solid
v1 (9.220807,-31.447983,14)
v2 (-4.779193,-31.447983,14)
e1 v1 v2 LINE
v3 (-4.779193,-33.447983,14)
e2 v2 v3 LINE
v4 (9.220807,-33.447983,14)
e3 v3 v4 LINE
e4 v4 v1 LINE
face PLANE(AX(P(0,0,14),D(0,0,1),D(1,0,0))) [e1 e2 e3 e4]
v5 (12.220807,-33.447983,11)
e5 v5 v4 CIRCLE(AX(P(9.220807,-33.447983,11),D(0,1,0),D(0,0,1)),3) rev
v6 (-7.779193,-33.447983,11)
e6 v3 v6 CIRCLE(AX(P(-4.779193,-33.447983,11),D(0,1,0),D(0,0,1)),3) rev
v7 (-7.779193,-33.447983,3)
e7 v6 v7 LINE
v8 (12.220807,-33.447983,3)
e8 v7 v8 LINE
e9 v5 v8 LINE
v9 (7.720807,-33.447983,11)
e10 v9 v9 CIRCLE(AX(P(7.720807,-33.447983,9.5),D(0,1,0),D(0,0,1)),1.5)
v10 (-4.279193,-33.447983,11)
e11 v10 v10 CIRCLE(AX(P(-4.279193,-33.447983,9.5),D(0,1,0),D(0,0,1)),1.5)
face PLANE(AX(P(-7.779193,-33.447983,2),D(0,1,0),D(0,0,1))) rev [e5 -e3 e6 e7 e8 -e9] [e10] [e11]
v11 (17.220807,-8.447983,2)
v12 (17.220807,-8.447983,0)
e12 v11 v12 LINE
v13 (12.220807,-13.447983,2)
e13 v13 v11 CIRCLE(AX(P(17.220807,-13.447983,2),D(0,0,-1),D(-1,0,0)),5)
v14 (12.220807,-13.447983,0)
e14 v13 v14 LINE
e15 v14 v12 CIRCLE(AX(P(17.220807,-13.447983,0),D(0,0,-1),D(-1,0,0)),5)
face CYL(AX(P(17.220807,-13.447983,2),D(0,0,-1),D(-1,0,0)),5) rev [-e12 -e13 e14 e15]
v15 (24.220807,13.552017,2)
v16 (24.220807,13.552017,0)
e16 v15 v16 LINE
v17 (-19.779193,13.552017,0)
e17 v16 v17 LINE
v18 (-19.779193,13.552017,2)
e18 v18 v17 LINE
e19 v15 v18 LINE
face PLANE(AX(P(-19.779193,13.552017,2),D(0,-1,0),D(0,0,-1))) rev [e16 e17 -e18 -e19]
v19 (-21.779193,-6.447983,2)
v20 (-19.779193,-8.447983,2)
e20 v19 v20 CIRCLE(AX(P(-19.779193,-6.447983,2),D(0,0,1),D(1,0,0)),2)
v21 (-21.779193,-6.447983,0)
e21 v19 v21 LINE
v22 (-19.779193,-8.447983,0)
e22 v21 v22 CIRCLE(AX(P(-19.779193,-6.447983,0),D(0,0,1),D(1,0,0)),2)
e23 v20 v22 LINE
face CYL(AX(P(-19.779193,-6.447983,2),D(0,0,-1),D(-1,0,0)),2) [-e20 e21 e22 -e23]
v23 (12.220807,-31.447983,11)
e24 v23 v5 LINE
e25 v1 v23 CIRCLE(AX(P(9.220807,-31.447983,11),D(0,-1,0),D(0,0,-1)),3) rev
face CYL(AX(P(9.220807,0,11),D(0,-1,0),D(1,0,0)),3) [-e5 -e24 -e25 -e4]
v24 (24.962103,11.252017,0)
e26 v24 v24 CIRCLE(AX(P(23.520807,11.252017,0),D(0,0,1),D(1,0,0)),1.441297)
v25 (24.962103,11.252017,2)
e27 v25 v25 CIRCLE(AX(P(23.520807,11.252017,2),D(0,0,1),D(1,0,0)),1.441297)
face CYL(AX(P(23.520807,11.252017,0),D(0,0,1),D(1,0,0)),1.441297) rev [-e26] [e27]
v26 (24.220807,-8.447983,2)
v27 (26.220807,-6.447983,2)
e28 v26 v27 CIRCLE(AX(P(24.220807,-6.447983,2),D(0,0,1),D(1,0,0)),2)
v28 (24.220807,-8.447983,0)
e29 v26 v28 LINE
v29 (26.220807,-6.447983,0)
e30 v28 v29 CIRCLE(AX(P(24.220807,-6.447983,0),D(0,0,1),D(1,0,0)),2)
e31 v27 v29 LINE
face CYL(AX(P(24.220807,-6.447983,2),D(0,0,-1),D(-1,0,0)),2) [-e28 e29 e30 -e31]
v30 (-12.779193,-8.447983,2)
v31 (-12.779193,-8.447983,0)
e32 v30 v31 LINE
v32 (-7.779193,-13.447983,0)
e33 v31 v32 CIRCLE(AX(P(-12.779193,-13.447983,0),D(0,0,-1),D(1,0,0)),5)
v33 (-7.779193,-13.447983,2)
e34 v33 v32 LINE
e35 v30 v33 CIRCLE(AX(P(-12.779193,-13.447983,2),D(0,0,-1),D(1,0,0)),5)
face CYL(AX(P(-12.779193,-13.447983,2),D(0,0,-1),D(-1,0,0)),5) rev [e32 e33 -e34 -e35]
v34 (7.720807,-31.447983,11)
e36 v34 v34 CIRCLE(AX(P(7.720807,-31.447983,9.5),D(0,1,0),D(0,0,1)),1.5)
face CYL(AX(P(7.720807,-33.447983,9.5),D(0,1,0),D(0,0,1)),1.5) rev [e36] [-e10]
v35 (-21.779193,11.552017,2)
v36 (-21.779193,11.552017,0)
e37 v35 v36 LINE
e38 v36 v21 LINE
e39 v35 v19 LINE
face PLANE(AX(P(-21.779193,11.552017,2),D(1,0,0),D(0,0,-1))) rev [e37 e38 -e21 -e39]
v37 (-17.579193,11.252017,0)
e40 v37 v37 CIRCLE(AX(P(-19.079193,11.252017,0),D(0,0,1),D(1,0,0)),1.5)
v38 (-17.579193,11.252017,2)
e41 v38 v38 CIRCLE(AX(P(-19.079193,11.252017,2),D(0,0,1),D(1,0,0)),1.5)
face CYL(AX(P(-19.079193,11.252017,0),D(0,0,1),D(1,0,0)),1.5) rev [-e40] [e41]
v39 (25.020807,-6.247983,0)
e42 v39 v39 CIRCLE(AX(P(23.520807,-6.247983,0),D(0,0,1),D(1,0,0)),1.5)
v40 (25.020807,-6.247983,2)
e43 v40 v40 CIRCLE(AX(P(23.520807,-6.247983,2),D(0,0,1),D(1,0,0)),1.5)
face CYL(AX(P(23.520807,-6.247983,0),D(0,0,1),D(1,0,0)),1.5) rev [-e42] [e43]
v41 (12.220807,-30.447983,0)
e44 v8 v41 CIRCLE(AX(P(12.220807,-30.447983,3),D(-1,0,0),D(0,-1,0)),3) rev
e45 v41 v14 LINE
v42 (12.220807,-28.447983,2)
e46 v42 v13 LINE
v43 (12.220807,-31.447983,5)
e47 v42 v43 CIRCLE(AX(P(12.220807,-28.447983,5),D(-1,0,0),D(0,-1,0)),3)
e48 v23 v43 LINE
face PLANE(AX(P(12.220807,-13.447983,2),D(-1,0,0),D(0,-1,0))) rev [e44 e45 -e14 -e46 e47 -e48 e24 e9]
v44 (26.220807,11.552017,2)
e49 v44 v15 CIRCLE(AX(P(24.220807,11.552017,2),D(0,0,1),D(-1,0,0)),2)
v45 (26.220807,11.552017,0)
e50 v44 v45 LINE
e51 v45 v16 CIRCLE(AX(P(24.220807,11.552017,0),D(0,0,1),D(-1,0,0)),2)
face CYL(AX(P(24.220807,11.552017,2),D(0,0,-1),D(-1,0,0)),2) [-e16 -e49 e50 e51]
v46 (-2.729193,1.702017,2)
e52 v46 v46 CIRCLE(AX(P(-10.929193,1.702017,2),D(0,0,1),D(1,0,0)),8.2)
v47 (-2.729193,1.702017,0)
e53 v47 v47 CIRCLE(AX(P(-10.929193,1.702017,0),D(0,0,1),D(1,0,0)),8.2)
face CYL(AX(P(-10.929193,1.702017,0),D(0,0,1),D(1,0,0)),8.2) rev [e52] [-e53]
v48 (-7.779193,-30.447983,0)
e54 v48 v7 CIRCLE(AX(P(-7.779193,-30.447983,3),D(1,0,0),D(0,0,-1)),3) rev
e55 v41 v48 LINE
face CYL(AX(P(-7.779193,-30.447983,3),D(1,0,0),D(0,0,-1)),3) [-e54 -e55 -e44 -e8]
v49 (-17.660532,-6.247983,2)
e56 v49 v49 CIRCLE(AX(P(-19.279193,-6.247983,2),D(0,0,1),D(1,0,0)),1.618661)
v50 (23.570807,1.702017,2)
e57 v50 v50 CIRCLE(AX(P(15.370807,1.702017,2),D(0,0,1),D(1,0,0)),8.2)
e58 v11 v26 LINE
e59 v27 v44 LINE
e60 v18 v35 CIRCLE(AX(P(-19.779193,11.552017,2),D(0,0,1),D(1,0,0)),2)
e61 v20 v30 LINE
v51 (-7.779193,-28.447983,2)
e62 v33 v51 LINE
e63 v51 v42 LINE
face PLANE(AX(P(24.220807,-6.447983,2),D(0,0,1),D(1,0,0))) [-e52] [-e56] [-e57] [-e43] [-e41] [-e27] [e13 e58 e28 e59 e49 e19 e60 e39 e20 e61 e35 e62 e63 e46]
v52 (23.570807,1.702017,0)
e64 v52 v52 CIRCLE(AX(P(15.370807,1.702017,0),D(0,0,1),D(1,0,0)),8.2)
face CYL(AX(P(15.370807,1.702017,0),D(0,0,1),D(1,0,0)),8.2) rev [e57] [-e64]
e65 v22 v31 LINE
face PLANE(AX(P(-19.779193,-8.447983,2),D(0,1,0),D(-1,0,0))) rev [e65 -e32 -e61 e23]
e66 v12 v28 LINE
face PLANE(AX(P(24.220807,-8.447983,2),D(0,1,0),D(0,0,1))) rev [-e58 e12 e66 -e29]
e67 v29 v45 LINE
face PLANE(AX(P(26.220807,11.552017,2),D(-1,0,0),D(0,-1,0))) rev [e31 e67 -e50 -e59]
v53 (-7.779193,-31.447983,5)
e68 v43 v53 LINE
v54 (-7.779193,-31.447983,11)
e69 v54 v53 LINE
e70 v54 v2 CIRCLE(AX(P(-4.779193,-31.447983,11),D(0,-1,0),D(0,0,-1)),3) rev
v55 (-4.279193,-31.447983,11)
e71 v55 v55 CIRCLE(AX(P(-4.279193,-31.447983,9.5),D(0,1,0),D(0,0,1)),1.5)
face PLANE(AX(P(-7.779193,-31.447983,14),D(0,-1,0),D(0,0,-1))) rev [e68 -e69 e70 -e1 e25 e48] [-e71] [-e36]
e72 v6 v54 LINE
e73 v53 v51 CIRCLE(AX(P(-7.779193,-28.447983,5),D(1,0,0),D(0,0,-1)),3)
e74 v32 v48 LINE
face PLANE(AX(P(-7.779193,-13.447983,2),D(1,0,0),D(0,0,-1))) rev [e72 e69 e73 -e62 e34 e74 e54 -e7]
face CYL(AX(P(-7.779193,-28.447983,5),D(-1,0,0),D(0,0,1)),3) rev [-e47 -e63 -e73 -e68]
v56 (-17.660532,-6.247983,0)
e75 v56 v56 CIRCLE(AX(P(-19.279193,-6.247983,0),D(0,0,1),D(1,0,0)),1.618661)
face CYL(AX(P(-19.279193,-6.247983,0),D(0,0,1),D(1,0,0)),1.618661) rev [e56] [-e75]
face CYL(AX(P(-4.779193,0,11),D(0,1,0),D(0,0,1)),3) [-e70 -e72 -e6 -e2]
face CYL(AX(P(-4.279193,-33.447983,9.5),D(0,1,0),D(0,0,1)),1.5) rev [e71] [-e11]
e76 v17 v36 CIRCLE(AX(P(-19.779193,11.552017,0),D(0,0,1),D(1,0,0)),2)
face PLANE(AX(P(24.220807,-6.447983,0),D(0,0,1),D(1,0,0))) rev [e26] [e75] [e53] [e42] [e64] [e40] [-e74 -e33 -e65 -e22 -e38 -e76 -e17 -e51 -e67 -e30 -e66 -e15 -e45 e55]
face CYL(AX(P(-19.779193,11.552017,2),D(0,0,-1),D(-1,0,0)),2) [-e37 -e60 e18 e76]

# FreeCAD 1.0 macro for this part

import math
import FreeCAD as App
import Part
import Sketcher

V = App.Vector


def edges_at(feature, points):
    """Names of the edges that pass closest to the given points."""
    edges = feature.Shape.Edges
    near = lambda p: min(range(len(edges)), key=lambda i: edges[i].distToShape(Part.Vertex(*p))[0])
    return sorted({f"Edge{near(p) + 1}" for p in points})

doc = App.newDocument("Part")
body = doc.addObject("PartDesign::Body", "Body")

sketch1 = body.newObject("Sketcher::SketchObject", "Sketch")
sketch1.AttachmentSupport = (doc.getObject("XY_Plane"), [""])
sketch1.MapMode = "FlatFace"
sketch1.addGeometry([
    Part.LineSegment(V(24.2, 13.6, 0), V(-19.8, 13.6, 0)),
    Part.ArcOfCircle(Part.Circle(V(-19.8, 11.6, 0), V(0, 0, 1), 2), math.radians(90), math.radians(180)),
    Part.LineSegment(V(-21.8, 11.6, 0), V(-21.8, -6.4, 0)),
    Part.ArcOfCircle(Part.Circle(V(-19.8, -6.4, 0), V(0, 0, 1), 2), math.radians(-180), math.radians(-90)),
    Part.LineSegment(V(-19.8, -8.4, 0), V(-12.8, -8.4, 0)),
    Part.ArcOfCircle(Part.Circle(V(-12.8, -13.4, 0), V(0, 0, 1), 5), math.radians(0), math.radians(90)),
    Part.LineSegment(V(-7.8, -13.4, 0), V(-7.8, -33.4, 0)),
    Part.LineSegment(V(-7.8, -33.4, 0), V(12.2, -33.4, 0)),
    Part.LineSegment(V(12.2, -33.4, 0), V(12.2, -13.4, 0)),
    Part.ArcOfCircle(Part.Circle(V(17.2, -13.4, 0), V(0, 0, 1), 5), math.radians(90), math.radians(180)),
    Part.LineSegment(V(17.2, -8.4, 0), V(24.2, -8.4, 0)),
    Part.ArcOfCircle(Part.Circle(V(24.2, -6.4, 0), V(0, 0, 1), 2), math.radians(-90), math.radians(0)),
    Part.LineSegment(V(26.2, -6.4, 0), V(26.2, 11.6, 0)),
    Part.ArcOfCircle(Part.Circle(V(24.2, 11.6, 0), V(0, 0, 1), 2), math.radians(0), math.radians(90)),
], False)
sketch1.addConstraint([
    Sketcher.Constraint("Tangent", 0, 2, 1, 1),
    Sketcher.Constraint("Tangent", 1, 2, 2, 1),
    Sketcher.Constraint("Tangent", 2, 2, 3, 1),
    Sketcher.Constraint("Tangent", 3, 2, 4, 1),
    Sketcher.Constraint("Tangent", 4, 2, 5, 2),
    Sketcher.Constraint("Tangent", 5, 1, 6, 1),
    Sketcher.Constraint("Coincident", 6, 2, 7, 1),
    Sketcher.Constraint("Coincident", 7, 2, 8, 1),
    Sketcher.Constraint("Tangent", 8, 2, 9, 2),
    Sketcher.Constraint("Tangent", 9, 1, 10, 1),
    Sketcher.Constraint("Tangent", 10, 2, 11, 1),
    Sketcher.Constraint("Tangent", 11, 2, 12, 1),
    Sketcher.Constraint("Tangent", 12, 2, 13, 1),
    Sketcher.Constraint("Tangent", 13, 2, 0, 1),
    Sketcher.Constraint("Horizontal", 0),
    Sketcher.Constraint("Vertical", 2),
    Sketcher.Constraint("Horizontal", 4),
    Sketcher.Constraint("Vertical", 6),
    Sketcher.Constraint("Horizontal", 7),
    Sketcher.Constraint("Vertical", 8),
    Sketcher.Constraint("Horizontal", 10),
    Sketcher.Constraint("Vertical", 12),
    Sketcher.Constraint("Equal", 1, 3),
    Sketcher.Constraint("Equal", 5, 9),
    Sketcher.Constraint("Equal", 3, 11),
    Sketcher.Constraint("Equal", 11, 13),
    Sketcher.Constraint("Horizontal", 5, 3, 9, 3),
    Sketcher.Constraint("Equal", 4, 10),
    Sketcher.Constraint("Equal", 7, 6),
    Sketcher.Constraint("Radius", 1, 2.0),
    Sketcher.Constraint("Radius", 5, 5.0),
    Sketcher.Constraint("DistanceX", 0, 2, 0, 1, 44.0),
    Sketcher.Constraint("DistanceX", 4, 1, 4, 2, 7.0),
    Sketcher.Constraint("DistanceY", 2, 2, 2, 1, 18.0),
    Sketcher.Constraint("DistanceX", 1, 3, -1, 1, 19.779193),
    Sketcher.Constraint("DistanceY", -1, 1, 1, 3, 11.552017),
])
pad1 = body.newObject("PartDesign::Pad", "Pad")
pad1.Profile = sketch1
pad1.Length = 2

sketch2 = body.newObject("Sketcher::SketchObject", "Sketch001")
sketch2.AttachmentSupport = (doc.getObject("XY_Plane"), [""])
sketch2.MapMode = "FlatFace"
sketch2.AttachmentOffset = App.Placement(V(0, 0, 2), App.Rotation())
sketch2.addGeometry([
    Part.Circle(V(-11, 2, 0), V(0, 0, 1), 8),
    Part.Circle(V(15, 2, 0), V(0, 0, 1), 8),
], False)
sketch2.addConstraint([
    Sketcher.Constraint("Equal", 0, 1),
    Sketcher.Constraint("Horizontal", 0, 3, 1, 3),
    Sketcher.Constraint("Diameter", 0, 16.4),
    Sketcher.Constraint("DistanceX", 0, 3, 1, 3, 26.3),
    Sketcher.Constraint("DistanceX", 0, 3, -1, 1, 10.929193),
    Sketcher.Constraint("DistanceY", -1, 1, 0, 3, 1.702017),
])
pocket1 = body.newObject("PartDesign::Pocket", "Pocket")
pocket1.Profile = sketch2
pocket1.Type = "ThroughAll"

sketch3 = body.newObject("Sketcher::SketchObject", "Sketch002")
sketch3.AttachmentSupport = (doc.getObject("XY_Plane"), [""])
sketch3.MapMode = "FlatFace"
sketch3.AttachmentOffset = App.Placement(V(0, 0, 2), App.Rotation())
sketch3.addGeometry([
    Part.Circle(V(-19.1, 11.3, 0), V(0, 0, 1), 1.5),
    Part.Circle(V(-19.3, -6.2, 0), V(0, 0, 1), 1.6),
    Part.Circle(V(23.5, 11.3, 0), V(0, 0, 1), 1.4),
    Part.Circle(V(23.5, -6.2, 0), V(0, 0, 1), 1.5),
], False)
sketch3.addConstraint([
    Sketcher.Constraint("Equal", 0, 3),
    Sketcher.Constraint("Horizontal", 0, 3, 2, 3),
    Sketcher.Constraint("Horizontal", 1, 3, 3, 3),
    Sketcher.Constraint("Vertical", 2, 3, 3, 3),
    Sketcher.Constraint("Diameter", 0, 3.0),
    Sketcher.Constraint("DistanceX", 1, 3, 0, 3, 0.2),
    Sketcher.Constraint("DistanceY", 1, 3, 0, 3, 17.5),
    Sketcher.Constraint("DistanceX", 0, 3, 2, 3, 42.6),
    Sketcher.Constraint("Diameter", 1, 3.237322),
    Sketcher.Constraint("Diameter", 2, 2.882593),
    Sketcher.Constraint("DistanceX", 0, 3, -1, 1, 19.079193),
    Sketcher.Constraint("DistanceY", -1, 1, 0, 3, 11.252017),
])
pocket2 = body.newObject("PartDesign::Pocket", "Pocket001")
pocket2.Profile = sketch3
pocket2.Type = "ThroughAll"

sketch4 = body.newObject("Sketcher::SketchObject", "Sketch003")
sketch4.AttachmentSupport = (doc.getObject("XY_Plane"), [""])
sketch4.MapMode = "FlatFace"
sketch4.AttachmentOffset = App.Placement(V(0, 0, 2), App.Rotation())
sketch4.addGeometry([
    Part.LineSegment(V(-7.8, -31.4, 0), V(-7.8, -33.4, 0)),
    Part.LineSegment(V(-7.8, -33.4, 0), V(12.2, -33.4, 0)),
    Part.LineSegment(V(12.2, -33.4, 0), V(12.2, -31.4, 0)),
    Part.LineSegment(V(12.2, -31.4, 0), V(-7.8, -31.4, 0)),
], False)
sketch4.addConstraint([
    Sketcher.Constraint("Coincident", 0, 2, 1, 1),
    Sketcher.Constraint("Coincident", 1, 2, 2, 1),
    Sketcher.Constraint("Coincident", 2, 2, 3, 1),
    Sketcher.Constraint("Coincident", 3, 2, 0, 1),
    Sketcher.Constraint("Vertical", 0),
    Sketcher.Constraint("Horizontal", 1),
    Sketcher.Constraint("Vertical", 2),
    Sketcher.Constraint("Horizontal", 3),
    Sketcher.Constraint("DistanceX", 1, 1, 1, 2, 20.0),
    Sketcher.Constraint("DistanceY", 0, 2, 0, 1, 2.0),
    Sketcher.Constraint("DistanceX", 0, 2, -1, 1, 7.779193),
    Sketcher.Constraint("DistanceY", 0, 2, -1, 1, 33.447983),
])
pad2 = body.newObject("PartDesign::Pad", "Pad001")
pad2.Profile = sketch4
pad2.Length = 12
doc.recompute()

fillet = body.newObject("PartDesign::Fillet", "Fillet")
fillet.Base = (pad2, edges_at(pad2, [(2.221, -33.448, 0)]))
fillet.Radius = 3
doc.recompute()

fillet2 = body.newObject("PartDesign::Fillet", "Fillet001")
fillet2.Base = (fillet, edges_at(fillet, [(2.221, -31.448, 2)]))
fillet2.Radius = 3

sketch5 = body.newObject("Sketcher::SketchObject", "Sketch004")
sketch5.AttachmentSupport = (doc.getObject("XZ_Plane"), [""])
sketch5.MapMode = "FlatFace"
sketch5.AttachmentOffset = App.Placement(V(0, 0, 31.447983), App.Rotation())
sketch5.addGeometry([
    Part.Circle(V(-4.3, 9.5, 0), V(0, 0, 1), 1.5),
    Part.Circle(V(7.7, 9.5, 0), V(0, 0, 1), 1.5),
], False)
sketch5.addConstraint([
    Sketcher.Constraint("Equal", 0, 1),
    Sketcher.Constraint("Horizontal", 0, 3, 1, 3),
    Sketcher.Constraint("Diameter", 0, 3.0),
    Sketcher.Constraint("DistanceX", 0, 3, 1, 3, 12.0),
    Sketcher.Constraint("DistanceY", -1, 1, 0, 3, 9.5),
    Sketcher.Constraint("DistanceX", 0, 3, -1, 1, 4.279193),
])
pocket3 = body.newObject("PartDesign::Pocket", "Pocket002")
pocket3.Profile = sketch5
pocket3.Type = "ThroughAll"
pocket3.Reversed = True
doc.recompute()

fillet3 = body.newObject("PartDesign::Fillet", "Fillet002")
fillet3.Base = (pocket3, edges_at(pocket3, [(-7.779, -32.448, 14), (12.221, -32.448, 14)]))
fillet3.Radius = 3

doc.recompute()
